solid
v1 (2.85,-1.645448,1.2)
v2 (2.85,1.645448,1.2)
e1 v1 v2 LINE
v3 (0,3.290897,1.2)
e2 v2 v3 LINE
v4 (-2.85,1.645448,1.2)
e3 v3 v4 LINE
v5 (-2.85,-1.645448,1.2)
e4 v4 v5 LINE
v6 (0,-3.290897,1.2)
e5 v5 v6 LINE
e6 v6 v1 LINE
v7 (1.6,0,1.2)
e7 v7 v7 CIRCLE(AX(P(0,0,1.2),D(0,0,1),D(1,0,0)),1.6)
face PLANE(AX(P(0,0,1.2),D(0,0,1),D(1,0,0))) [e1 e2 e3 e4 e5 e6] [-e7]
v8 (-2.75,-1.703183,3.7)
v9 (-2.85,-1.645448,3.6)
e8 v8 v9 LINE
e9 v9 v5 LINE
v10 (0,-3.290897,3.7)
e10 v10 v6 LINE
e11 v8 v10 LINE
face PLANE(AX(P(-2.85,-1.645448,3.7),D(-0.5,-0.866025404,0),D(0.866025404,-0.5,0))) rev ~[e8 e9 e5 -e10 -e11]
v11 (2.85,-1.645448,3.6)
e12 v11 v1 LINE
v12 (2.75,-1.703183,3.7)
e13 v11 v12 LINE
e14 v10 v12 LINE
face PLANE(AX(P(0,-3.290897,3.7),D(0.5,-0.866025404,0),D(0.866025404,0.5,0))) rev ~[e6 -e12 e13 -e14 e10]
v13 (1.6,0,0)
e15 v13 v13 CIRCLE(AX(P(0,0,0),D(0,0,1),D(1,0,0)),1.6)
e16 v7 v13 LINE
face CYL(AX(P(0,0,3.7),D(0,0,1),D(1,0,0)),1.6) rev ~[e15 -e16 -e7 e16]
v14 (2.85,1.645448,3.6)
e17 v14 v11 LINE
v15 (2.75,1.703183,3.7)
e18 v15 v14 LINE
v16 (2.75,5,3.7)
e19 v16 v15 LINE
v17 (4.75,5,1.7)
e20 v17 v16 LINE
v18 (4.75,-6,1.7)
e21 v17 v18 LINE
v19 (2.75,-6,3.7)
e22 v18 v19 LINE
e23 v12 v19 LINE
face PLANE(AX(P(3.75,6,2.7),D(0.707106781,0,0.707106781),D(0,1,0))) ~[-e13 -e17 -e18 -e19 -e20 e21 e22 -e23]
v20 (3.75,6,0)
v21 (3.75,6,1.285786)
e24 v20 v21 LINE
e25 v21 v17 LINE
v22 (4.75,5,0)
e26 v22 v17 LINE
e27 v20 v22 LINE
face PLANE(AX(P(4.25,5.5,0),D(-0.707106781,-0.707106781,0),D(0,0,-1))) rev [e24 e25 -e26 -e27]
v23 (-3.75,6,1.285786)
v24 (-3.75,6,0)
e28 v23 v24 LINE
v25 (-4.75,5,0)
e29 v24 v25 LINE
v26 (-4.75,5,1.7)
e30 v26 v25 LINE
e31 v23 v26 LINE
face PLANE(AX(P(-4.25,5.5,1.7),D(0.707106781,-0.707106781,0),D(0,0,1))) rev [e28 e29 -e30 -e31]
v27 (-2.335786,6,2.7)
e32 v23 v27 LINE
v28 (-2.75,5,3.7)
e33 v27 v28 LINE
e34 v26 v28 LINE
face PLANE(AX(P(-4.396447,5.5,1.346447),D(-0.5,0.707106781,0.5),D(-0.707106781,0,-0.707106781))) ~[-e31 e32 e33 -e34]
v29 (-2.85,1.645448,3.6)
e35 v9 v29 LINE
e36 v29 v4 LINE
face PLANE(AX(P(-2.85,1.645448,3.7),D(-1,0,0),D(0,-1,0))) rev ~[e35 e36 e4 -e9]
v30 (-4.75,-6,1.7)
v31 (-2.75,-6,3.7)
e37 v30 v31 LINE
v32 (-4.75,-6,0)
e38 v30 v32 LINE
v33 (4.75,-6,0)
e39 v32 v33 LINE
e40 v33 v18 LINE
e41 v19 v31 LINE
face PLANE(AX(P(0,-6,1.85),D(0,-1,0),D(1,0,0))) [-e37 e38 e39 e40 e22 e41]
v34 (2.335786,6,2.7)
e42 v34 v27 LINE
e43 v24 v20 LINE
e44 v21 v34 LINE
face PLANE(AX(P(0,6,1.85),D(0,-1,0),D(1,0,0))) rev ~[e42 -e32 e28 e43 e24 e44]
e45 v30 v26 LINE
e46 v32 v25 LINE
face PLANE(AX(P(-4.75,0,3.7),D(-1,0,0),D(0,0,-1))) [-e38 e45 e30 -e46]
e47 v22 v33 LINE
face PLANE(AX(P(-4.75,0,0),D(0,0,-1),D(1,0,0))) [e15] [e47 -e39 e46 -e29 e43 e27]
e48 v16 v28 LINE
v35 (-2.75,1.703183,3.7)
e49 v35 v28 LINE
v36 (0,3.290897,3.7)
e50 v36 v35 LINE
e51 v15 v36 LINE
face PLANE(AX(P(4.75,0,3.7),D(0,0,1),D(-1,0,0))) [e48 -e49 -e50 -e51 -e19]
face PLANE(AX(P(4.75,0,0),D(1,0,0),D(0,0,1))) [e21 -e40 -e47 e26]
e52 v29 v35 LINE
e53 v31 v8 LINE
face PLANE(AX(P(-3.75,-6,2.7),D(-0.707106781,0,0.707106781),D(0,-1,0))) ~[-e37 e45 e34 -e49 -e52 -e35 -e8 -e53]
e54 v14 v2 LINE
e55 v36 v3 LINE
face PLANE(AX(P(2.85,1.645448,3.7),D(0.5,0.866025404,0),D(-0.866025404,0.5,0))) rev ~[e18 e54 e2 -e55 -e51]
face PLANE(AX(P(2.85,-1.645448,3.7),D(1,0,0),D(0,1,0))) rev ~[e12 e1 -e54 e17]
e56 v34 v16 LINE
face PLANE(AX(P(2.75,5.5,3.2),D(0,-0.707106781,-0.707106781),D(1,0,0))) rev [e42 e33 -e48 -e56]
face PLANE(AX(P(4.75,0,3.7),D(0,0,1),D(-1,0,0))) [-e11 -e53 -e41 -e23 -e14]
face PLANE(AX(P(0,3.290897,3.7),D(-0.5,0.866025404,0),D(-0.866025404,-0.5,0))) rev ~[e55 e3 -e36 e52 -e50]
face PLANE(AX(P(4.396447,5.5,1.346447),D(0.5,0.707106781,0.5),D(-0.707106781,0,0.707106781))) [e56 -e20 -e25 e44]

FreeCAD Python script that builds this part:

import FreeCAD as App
import Part
import Sketcher
Q = App.Units.Quantity


def edges_at(feature, points):
    """Names of the edges that pass closest to the given points."""
    edges = feature.Shape.Edges
    near = lambda p: min(range(len(edges)), key=lambda i: edges[i].distToShape(Part.Vertex(*p))[0])
    return sorted({f"Edge{near(p) + 1}" for p in points})


def add_polygon(sketch, points):
    """Adds a closed chain of lines whose ends are joined by coincident constraints."""
    first, n = sketch.GeometryCount, len(points)
    for a, b in zip(points, points[1:] + points[:1]):
        sketch.addGeometry(Part.LineSegment(App.Vector(*a, 0), App.Vector(*b, 0)), False)
    for i in range(n):
        sketch.addConstraint(Sketcher.Constraint("Coincident", first + i, 2, first + (i + 1) % n, 1))

doc = App.newDocument("Part")
params = doc.addObject("Spreadsheet::Sheet", "Params")
for row, (alias, value) in enumerate([
    ("sketch1_width", "9.5 mm"),
    ("sketch1_height", "3.7 mm"),
    ("pad1_length", "12 mm"),
    ("sketch2_diameter", "3.2 mm"),
    ("chamfer_size", "2 mm"),
    ("chamfer_size2", "2 mm"),
    ("pocket2_length", "2.5 mm"),
    ("chamfer2_size", "1 mm"),
], start=1):
    params.set(f"A{row}", alias)
    params.set(f"B{row}", "=" + value)
    params.setAlias(f"B{row}", alias)

body = doc.addObject("PartDesign::Body", "Body")

sketch1 = body.newObject("Sketcher::SketchObject", "Sketch")
sketch1.AttachmentSupport = (doc.getObject("XZ_Plane"), [""])
sketch1.MapMode = "FlatFace"
add_polygon(sketch1, [(-4.8, 0), (4.8, 0), (4.8, 3.7), (-4.8, 3.7)])
sketch1.addConstraint(Sketcher.Constraint("Horizontal", 0))
sketch1.addConstraint(Sketcher.Constraint("Vertical", 1))
sketch1.addConstraint(Sketcher.Constraint("Horizontal", 2))
sketch1.addConstraint(Sketcher.Constraint("Vertical", 3))
sketch1.addConstraint(Sketcher.Constraint("Symmetric", 0, 2, 3, 2, -1, 1))
sketch1.addConstraint(Sketcher.Constraint("DistanceX", 0, 1, 0, 2, Q("9.5 mm")))
sketch1.addConstraint(Sketcher.Constraint("DistanceY", 1, 1, 1, 2, Q("3.7 mm")))
sketch1.setExpression("Constraints[9]", "Params.sketch1_width")
sketch1.setExpression("Constraints[10]", "Params.sketch1_height")
pad1 = body.newObject("PartDesign::Pad", "Pad")
pad1.Profile = sketch1
pad1.setExpression("Length", "Params.pad1_length")
pad1.Midplane = True

sketch2 = body.newObject("Sketcher::SketchObject", "Sketch001")
sketch2.AttachmentSupport = (doc.getObject("XY_Plane"), [""])
sketch2.MapMode = "FlatFace"
sketch2.AttachmentOffset = App.Placement(App.Vector(0, 0, 3.7), App.Rotation())
sketch2.addGeometry(Part.Circle(App.Vector(0, 0, 0), App.Vector(0, 0, 1), 1.6), False)
sketch2.addConstraint(Sketcher.Constraint("Coincident", 0, 3, -1, 1))
sketch2.addConstraint(Sketcher.Constraint("Diameter", 0, Q("3.2 mm")))
sketch2.setExpression("Constraints[1]", "Params.sketch2_diameter")
pocket1 = body.newObject("PartDesign::Pocket", "Pocket")
pocket1.Profile = sketch2
pocket1.Type = "ThroughAll"
doc.recompute()

chamfer = body.newObject("PartDesign::Chamfer", "Chamfer")
chamfer.Base = (pocket1, edges_at(pocket1, [(-4.75, 0, 3.7), (4.75, 0, 3.7)]))
chamfer.ChamferType = "Two distances"
chamfer.setExpression("Size", "Params.chamfer_size")
chamfer.setExpression("Size2", "Params.chamfer_size2")

sketch3 = body.newObject("Sketcher::SketchObject", "Sketch002")
sketch3.AttachmentSupport = (doc.getObject("XY_Plane"), [""])
sketch3.MapMode = "FlatFace"
sketch3.AttachmentOffset = App.Placement(App.Vector(0, 0, 3.7), App.Rotation())
add_polygon(sketch3, [(2.9, -1.6), (2.9, 1.6), (0, 3.3), (-2.9, 1.6), (-2.9, -1.6), (0, -3.3)])
sketch3.addConstraint(Sketcher.Constraint("Vertical", 0))
sketch3.addConstraint(Sketcher.Constraint("Vertical", 3))
sketch3.addConstraint(Sketcher.Constraint("Symmetric", 0, 2, 3, 2, -1, 1))
sketch3.addConstraint(Sketcher.Constraint("Symmetric", 1, 2, 4, 2, -1, 1))
sketch3.addConstraint(Sketcher.Constraint("PointOnObject", 1, 2, -2))
sketch3.addConstraint(Sketcher.Constraint("Parallel", 2, 5))
sketch3.addConstraint(Sketcher.Constraint("Horizontal", 0, 2, 2, 2))
sketch3.addConstraint(Sketcher.Constraint("Angle", 1, Q("150 deg")))
sketch3.addConstraint(Sketcher.Constraint("DistanceX", 2, 2, 0, 2, Q("5.7 mm")))
sketch3.addConstraint(Sketcher.Constraint("DistanceY", 0, 1, 0, 2, Q("3.290897 mm")))
pocket2 = body.newObject("PartDesign::Pocket", "Pocket001")
pocket2.Profile = sketch3
pocket2.setExpression("Length", "Params.pocket2_length")
doc.recompute()

chamfer2 = body.newObject("PartDesign::Chamfer", "Chamfer001")
chamfer2.Base = (pocket2, edges_at(pocket2, [
    (3.75, 6, 2.7),
    (-3.75, 6, 2.7),
    (-4.75, 6, 0.85),
    (4.75, 6, 0.85),
    (0, 6, 3.7),
]))
chamfer2.setExpression("Size", "Params.chamfer2_size")

doc.recompute()
